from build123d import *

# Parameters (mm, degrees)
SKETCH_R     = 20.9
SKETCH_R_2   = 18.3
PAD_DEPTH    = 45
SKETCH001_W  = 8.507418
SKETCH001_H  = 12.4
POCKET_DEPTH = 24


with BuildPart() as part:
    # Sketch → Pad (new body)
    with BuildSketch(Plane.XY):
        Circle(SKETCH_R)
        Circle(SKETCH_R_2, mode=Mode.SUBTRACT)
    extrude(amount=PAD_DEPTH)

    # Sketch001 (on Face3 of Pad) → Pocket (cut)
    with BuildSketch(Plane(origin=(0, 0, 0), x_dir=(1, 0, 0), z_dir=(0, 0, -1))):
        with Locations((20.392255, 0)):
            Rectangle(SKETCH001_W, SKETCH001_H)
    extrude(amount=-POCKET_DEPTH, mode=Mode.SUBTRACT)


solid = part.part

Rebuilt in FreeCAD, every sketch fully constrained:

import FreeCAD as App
import Part
import Sketcher
from FreeCAD import Vector

doc = App.newDocument("Part")
params = doc.addObject("Spreadsheet::Sheet", "Params")
for row, (alias, value) in enumerate([
    ("sketch1_diameter", "41.8 mm"),
    ("sketch1_diameter2", "36.6 mm"),
    ("pad1_length", "45 mm"),
    ("sketch2_height", "12.4 mm"),
    ("pocket1_length", "24 mm"),
], start=1):
    params.set(f"A{row}", alias)
    params.set(f"B{row}", "=" + value)
    params.setAlias(f"B{row}", alias)

body = doc.addObject("PartDesign::Body", "Body")

# Sketch on XY plane
sketch1 = body.newObject("Sketcher::SketchObject", "Sketch")
sketch1.AttachmentSupport = (doc.getObject("XY_Plane"), [""])
sketch1.MapMode = "FlatFace"
sketch1.addGeometry([
    Part.Circle(Vector(0, 0, 0), Vector(0, 0, 1), 21),
    Part.Circle(Vector(0, 0, 0), Vector(0, 0, 1), 18),
], False)
sketch1.addConstraint([
    Sketcher.Constraint("Coincident", 0, 3, -1, 1),
    Sketcher.Constraint("Coincident", 1, 3, -1, 1),
    Sketcher.Constraint("Diameter", 0, 41.8),
    Sketcher.Constraint("Diameter", 1, 36.6),
])
sketch1.setExpression("Constraints[2]", "Params.sketch1_diameter")
sketch1.setExpression("Constraints[3]", "Params.sketch1_diameter2")
pad1 = body.newObject("PartDesign::Pad", "Pad")
pad1.Profile = sketch1
pad1.setExpression("Length", "Params.pad1_length")

# Sketch on XY plane
sketch2 = body.newObject("Sketcher::SketchObject", "Sketch001")
sketch2.AttachmentSupport = (doc.getObject("XY_Plane"), [""])
sketch2.MapMode = "FlatFace"
sketch2.addGeometry([
    Part.LineSegment(Vector(16, -6, 0), Vector(16, 6, 0)),
    Part.LineSegment(Vector(16, 6, 0), Vector(25, 6, 0)),
    Part.LineSegment(Vector(25, 6, 0), Vector(25, -6, 0)),
    Part.LineSegment(Vector(25, -6, 0), Vector(16, -6, 0)),
], False)
sketch2.addConstraint([
    Sketcher.Constraint("Coincident", 0, 2, 1, 1),
    Sketcher.Constraint("Coincident", 1, 2, 2, 1),
    Sketcher.Constraint("Coincident", 2, 2, 3, 1),
    Sketcher.Constraint("Coincident", 3, 2, 0, 1),
    Sketcher.Constraint("Vertical", 0),
    Sketcher.Constraint("Horizontal", 1),
    Sketcher.Constraint("Vertical", 2),
    Sketcher.Constraint("Horizontal", 3),
    Sketcher.Constraint("DistanceY", 0, 1, 0, 2, 12.4),
    Sketcher.Constraint("DistanceY", -1, 1, 0, 2, 6.2),
    Sketcher.Constraint("DistanceX", 1, 1, 1, 2, 8.507418),
    Sketcher.Constraint("DistanceX", -1, 1, 0, 2, 16.138546),
])
sketch2.setExpression("Constraints[8]", "Params.sketch2_height")
pocket1 = body.newObject("PartDesign::Pocket", "Pocket")
pocket1.Profile = sketch2
pocket1.setExpression("Length", "Params.pocket1_length")
pocket1.Reversed = True

doc.recompute()
